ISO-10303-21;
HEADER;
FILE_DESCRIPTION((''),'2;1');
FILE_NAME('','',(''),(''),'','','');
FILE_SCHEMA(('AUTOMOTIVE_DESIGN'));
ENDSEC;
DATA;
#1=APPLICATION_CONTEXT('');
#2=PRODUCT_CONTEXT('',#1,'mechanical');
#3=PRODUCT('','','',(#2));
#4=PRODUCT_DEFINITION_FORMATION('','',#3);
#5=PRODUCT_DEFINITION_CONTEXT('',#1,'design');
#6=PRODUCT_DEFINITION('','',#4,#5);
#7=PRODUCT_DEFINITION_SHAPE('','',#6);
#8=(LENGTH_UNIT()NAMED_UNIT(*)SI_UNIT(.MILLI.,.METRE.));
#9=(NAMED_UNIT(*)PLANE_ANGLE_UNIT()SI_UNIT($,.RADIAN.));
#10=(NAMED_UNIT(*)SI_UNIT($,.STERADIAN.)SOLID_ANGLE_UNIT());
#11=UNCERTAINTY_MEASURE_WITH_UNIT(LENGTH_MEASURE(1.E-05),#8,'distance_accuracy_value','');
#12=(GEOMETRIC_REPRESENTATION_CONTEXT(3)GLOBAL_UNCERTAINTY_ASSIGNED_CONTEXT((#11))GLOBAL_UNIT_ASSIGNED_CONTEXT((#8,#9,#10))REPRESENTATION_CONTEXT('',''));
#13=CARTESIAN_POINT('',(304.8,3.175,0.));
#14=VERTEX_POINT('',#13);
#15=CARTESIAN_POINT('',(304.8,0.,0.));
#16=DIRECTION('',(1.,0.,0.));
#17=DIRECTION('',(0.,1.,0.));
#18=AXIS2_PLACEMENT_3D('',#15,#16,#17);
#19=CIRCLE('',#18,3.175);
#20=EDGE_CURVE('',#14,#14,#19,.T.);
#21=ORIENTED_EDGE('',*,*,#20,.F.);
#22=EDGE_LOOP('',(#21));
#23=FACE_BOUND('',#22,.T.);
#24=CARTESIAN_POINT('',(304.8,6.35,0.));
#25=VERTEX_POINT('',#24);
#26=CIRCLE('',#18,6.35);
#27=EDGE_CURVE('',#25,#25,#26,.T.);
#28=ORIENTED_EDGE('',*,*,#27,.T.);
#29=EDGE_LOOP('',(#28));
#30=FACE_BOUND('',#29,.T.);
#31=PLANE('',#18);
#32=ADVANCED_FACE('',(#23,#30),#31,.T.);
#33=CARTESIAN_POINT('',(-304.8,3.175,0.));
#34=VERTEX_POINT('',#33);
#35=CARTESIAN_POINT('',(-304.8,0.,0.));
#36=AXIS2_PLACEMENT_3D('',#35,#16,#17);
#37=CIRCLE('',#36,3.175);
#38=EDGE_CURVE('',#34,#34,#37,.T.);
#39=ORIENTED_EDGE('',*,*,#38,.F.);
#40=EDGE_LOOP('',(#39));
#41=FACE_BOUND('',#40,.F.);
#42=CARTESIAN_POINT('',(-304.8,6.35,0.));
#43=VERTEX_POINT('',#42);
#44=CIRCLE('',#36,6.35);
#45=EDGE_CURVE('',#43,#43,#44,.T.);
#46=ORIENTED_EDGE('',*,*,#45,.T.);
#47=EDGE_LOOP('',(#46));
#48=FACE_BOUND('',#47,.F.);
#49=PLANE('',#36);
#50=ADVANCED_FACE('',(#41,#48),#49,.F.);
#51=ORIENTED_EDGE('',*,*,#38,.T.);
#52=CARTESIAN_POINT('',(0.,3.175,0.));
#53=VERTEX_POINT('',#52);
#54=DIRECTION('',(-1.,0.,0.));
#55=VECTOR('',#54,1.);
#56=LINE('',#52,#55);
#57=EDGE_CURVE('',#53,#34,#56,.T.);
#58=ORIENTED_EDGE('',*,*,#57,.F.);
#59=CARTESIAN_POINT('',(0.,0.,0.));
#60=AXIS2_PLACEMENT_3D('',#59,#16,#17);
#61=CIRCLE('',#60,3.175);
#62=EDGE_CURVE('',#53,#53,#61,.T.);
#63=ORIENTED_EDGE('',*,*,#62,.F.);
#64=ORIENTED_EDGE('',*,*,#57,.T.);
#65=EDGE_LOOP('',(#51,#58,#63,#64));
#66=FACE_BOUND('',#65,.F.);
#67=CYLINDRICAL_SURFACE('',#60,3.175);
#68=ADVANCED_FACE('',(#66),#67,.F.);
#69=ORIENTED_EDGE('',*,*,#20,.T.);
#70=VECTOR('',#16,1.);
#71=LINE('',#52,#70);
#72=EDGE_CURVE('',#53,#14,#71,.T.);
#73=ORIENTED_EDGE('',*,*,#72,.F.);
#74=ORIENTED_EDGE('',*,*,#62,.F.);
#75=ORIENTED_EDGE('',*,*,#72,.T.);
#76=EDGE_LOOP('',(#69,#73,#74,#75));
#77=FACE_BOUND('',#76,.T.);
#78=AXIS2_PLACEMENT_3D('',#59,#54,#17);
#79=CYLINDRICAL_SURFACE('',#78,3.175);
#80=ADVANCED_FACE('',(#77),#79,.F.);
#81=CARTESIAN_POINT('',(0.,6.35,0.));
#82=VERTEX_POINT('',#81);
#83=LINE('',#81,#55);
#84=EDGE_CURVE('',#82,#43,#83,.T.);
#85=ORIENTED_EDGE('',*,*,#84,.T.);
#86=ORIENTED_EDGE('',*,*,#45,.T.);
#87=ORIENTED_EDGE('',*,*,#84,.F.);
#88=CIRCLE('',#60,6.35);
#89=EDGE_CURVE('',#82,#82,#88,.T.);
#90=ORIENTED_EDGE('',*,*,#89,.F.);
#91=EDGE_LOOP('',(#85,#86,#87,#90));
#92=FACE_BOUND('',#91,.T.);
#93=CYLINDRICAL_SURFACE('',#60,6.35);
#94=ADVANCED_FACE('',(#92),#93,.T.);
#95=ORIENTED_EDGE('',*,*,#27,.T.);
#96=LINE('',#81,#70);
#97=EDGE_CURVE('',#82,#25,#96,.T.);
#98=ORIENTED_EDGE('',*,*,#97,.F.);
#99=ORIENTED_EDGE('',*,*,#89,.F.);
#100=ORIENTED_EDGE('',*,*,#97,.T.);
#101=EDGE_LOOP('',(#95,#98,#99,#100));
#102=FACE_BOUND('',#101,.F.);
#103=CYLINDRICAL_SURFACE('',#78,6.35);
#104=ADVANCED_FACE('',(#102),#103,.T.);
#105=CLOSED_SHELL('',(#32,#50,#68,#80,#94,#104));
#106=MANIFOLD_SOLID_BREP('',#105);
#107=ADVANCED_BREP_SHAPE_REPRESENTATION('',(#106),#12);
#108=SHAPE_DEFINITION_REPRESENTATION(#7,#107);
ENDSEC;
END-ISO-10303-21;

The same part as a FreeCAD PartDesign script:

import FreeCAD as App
import Part
import Sketcher
Q = App.Units.Quantity

doc = App.newDocument("Part")
body = doc.addObject("PartDesign::Body", "Body")

# Sketch on YZ plane
sketch1 = doc.addObject("Sketcher::SketchObject", "Sketch")
body.addObject(sketch1)
sketch1.AttachmentSupport = (doc.YZ_Plane, [""])
sketch1.MapMode = "FlatFace"
sketch1.addGeometry(Part.Circle(App.Vector(0, 0, 0), App.Vector(0, 0, 1), 6.3), False)
sketch1.addGeometry(Part.Circle(App.Vector(0, 0, 0), App.Vector(0, 0, 1), 3.2), False)
sketch1.addConstraint(Sketcher.Constraint("Coincident", 0, 3, -1, 1))
sketch1.addConstraint(Sketcher.Constraint("Coincident", 1, 3, -1, 1))
sketch1.addConstraint(Sketcher.Constraint("Diameter", 0, Q("0.5 in")))
sketch1.addConstraint(Sketcher.Constraint("Diameter", 1, Q("0.25 in")))
pad1 = doc.addObject("PartDesign::Pad", "Pad")
body.addObject(pad1)
pad1.Profile = sketch1
pad1.Length = Q("24 in")
pad1.Midplane = True

doc.recompute()
